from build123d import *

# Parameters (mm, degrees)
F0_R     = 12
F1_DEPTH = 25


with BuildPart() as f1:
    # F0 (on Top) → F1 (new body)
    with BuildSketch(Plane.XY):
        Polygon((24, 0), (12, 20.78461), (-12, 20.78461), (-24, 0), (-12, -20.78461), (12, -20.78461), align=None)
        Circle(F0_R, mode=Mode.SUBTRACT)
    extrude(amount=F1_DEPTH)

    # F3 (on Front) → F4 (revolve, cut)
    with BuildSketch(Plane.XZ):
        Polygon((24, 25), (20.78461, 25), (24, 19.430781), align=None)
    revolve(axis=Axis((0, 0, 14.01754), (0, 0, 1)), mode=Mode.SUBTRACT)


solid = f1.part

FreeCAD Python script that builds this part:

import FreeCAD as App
import Part
import Sketcher
from FreeCAD import Vector
Q = App.Units.Quantity

doc = App.newDocument("Part")
params = doc.addObject("Spreadsheet::Sheet", "Params")
for row, (alias, value) in enumerate([
    ("sketch1_diameter", "24 mm"),
    ("sketch1_width", "24 mm"),
    ("sketch1_length", "24 mm"),
    ("pad1_length", "25 mm"),
    ("groove_angle", "360 deg"),
], start=1):
    params.set(f"A{row}", alias)
    params.set(f"B{row}", "=" + value)
    params.setAlias(f"B{row}", alias)

body = doc.addObject("PartDesign::Body", "Body")

sketch1 = body.newObject("Sketcher::SketchObject", "Sketch")
sketch1.AttachmentSupport = (doc.getObject("XY_Plane"), [""])
sketch1.MapMode = "FlatFace"
sketch1.addGeometry(Part.LineSegment(Vector(24, 0, 0), Vector(12, 21, 0)), False)
sketch1.addGeometry(Part.LineSegment(Vector(12, 21, 0), Vector(-12, 21, 0)), False)
sketch1.addGeometry(Part.LineSegment(Vector(-12, 21, 0), Vector(-24, 0, 0)), False)
sketch1.addGeometry(Part.LineSegment(Vector(-24, 0, 0), Vector(-12, -21, 0)), False)
sketch1.addGeometry(Part.LineSegment(Vector(-12, -21, 0), Vector(12, -21, 0)), False)
sketch1.addGeometry(Part.LineSegment(Vector(12, -21, 0), Vector(24, 0, 0)), False)
sketch1.addGeometry(Part.Circle(Vector(0, 0, 0), Vector(0, 0, 1), 12), False)
sketch1.addConstraint(Sketcher.Constraint("Coincident", 0, 2, 1, 1))
sketch1.addConstraint(Sketcher.Constraint("Coincident", 1, 2, 2, 1))
sketch1.addConstraint(Sketcher.Constraint("Coincident", 2, 2, 3, 1))
sketch1.addConstraint(Sketcher.Constraint("Coincident", 3, 2, 4, 1))
sketch1.addConstraint(Sketcher.Constraint("Coincident", 4, 2, 5, 1))
sketch1.addConstraint(Sketcher.Constraint("Coincident", 5, 2, 0, 1))
sketch1.addConstraint(Sketcher.Constraint("Horizontal", 1))
sketch1.addConstraint(Sketcher.Constraint("Horizontal", 4))
sketch1.addConstraint(Sketcher.Constraint("Coincident", 6, 3, -1, 1))
sketch1.addConstraint(Sketcher.Constraint("Symmetric", 0, 2, 3, 2, -1, 1))
sketch1.addConstraint(Sketcher.Constraint("Symmetric", 2, 2, 5, 2, -1, 1))
sketch1.addConstraint(Sketcher.Constraint("PointOnObject", 2, 2, -1))
sketch1.addConstraint(Sketcher.Constraint("Parallel", 2, 5))
sketch1.addConstraint(Sketcher.Constraint("Vertical", 1, 2, 3, 2))
sketch1.addConstraint(Sketcher.Constraint("Diameter", 6, Q("24 mm")))
sketch1.addConstraint(Sketcher.Constraint("DistanceX", 1, 2, 1, 1, Q("24 mm")))
sketch1.addConstraint(Sketcher.Constraint("Angle", 0, Q("120 deg")))
sketch1.addConstraint(Sketcher.Constraint("Distance", 0, Q("24 mm")))
sketch1.setExpression("Constraints[14]", "Params.sketch1_diameter")
sketch1.setExpression("Constraints[15]", "Params.sketch1_width")
sketch1.setExpression("Constraints[17]", "Params.sketch1_length")
pad1 = body.newObject("PartDesign::Pad", "Pad")
pad1.Profile = sketch1
pad1.setExpression("Length", "Params.pad1_length")

sketch2 = body.newObject("Sketcher::SketchObject", "Sketch001")
sketch2.AttachmentSupport = (doc.getObject("XZ_Plane"), [""])
sketch2.MapMode = "FlatFace"
sketch2.addGeometry(Part.LineSegment(Vector(24, 25, 0), Vector(20.8, 25, 0)), False)
sketch2.addGeometry(Part.LineSegment(Vector(20.8, 25, 0), Vector(24, 19.4, 0)), False)
sketch2.addGeometry(Part.LineSegment(Vector(24, 19.4, 0), Vector(24, 25, 0)), False)
sketch2.addConstraint(Sketcher.Constraint("Coincident", 0, 2, 1, 1))
sketch2.addConstraint(Sketcher.Constraint("Coincident", 1, 2, 2, 1))
sketch2.addConstraint(Sketcher.Constraint("Coincident", 2, 2, 0, 1))
sketch2.addConstraint(Sketcher.Constraint("Horizontal", 0))
sketch2.addConstraint(Sketcher.Constraint("Vertical", 2))
sketch2.addConstraint(Sketcher.Constraint("Angle", 1, Q("-60.000001 deg")))
sketch2.addConstraint(Sketcher.Constraint("DistanceY", -1, 1, 0, 2, Q("25 mm")))
sketch2.addConstraint(Sketcher.Constraint("DistanceX", -1, 1, 1, 2, Q("24 mm")))
sketch2.addConstraint(Sketcher.Constraint("DistanceX", 0, 2, 0, 1, Q("3.21539 mm")))
groove = body.newObject("PartDesign::Groove", "Groove")
groove.Profile = sketch2
groove.ReferenceAxis = (sketch2, ["V_Axis"])
groove.setExpression("Angle", "Params.groove_angle")

doc.recompute()
